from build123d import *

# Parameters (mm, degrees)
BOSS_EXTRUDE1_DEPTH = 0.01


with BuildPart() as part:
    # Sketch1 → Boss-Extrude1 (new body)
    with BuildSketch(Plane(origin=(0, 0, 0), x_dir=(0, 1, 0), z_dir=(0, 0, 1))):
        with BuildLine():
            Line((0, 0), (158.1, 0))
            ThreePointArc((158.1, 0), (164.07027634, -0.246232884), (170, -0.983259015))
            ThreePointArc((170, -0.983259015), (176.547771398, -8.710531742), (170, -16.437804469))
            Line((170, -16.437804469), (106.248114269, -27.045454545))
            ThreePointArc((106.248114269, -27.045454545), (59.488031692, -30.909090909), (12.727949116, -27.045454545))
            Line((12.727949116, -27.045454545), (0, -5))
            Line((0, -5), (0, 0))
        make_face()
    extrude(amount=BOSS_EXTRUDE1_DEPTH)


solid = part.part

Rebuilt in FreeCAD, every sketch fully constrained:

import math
import FreeCAD as App
import Part
import Sketcher
from FreeCAD import Vector
Q = App.Units.Quantity

doc = App.newDocument("Part")
body = doc.addObject("PartDesign::Body", "Body")

# Sketch on XY plane
sketch1 = body.newObject("Sketcher::SketchObject", "Sketch")
sketch1.AttachmentSupport = (doc.getObject("XY_Plane"), [""])
sketch1.MapMode = "FlatFace"
sketch1.addGeometry(Part.LineSegment(Vector(0, 158, 0), Vector(0, 0, 0)), False)
sketch1.addGeometry(Part.LineSegment(Vector(0, 0, 0), Vector(5, 0, 0)), False)
sketch1.addGeometry(Part.LineSegment(Vector(5, 0, 0), Vector(27, 13, 0)), False)
sketch1.addGeometry(Part.ArcOfCircle(Part.Circle(Vector(-254, 59, 0), Vector(0, 0, 1), 285), math.radians(-9.45), math.radians(9.45)), False)
sketch1.addGeometry(Part.LineSegment(Vector(27, 106, 0), Vector(16, 170, 0)), False)
sketch1.addGeometry(Part.ArcOfCircle(Part.Circle(Vector(9, 169, 0), Vector(0, 0, 1), 8), math.radians(9), math.radians(171)), False)
sketch1.addGeometry(Part.ArcOfCircle(Part.Circle(Vector(73, 158, 0), Vector(0, 0, 1), 73), math.radians(170.55), math.radians(180)), False)
sketch1.addConstraint(Sketcher.Constraint("Coincident", 0, 2, 1, 1))
sketch1.addConstraint(Sketcher.Constraint("Coincident", 1, 2, 2, 1))
sketch1.addConstraint(Sketcher.Constraint("Coincident", 2, 2, 3, 1))
sketch1.addConstraint(Sketcher.Constraint("Tangent", 3, 2, 4, 1))
sketch1.addConstraint(Sketcher.Constraint("Tangent", 4, 2, 5, 1))
sketch1.addConstraint(Sketcher.Constraint("Tangent", 5, 2, 6, 1))
sketch1.addConstraint(Sketcher.Constraint("Tangent", 6, 2, 0, 1))
sketch1.addConstraint(Sketcher.Constraint("Vertical", 0))
sketch1.addConstraint(Sketcher.Constraint("Horizontal", 1))
sketch1.addConstraint(Sketcher.Constraint("Coincident", 0, 2, -1, 1))
sketch1.addConstraint(Sketcher.Constraint("Horizontal", 4, 2, 5, 2))
sketch1.addConstraint(Sketcher.Constraint("Vertical", 2, 2, 3, 2))
sketch1.addConstraint(Sketcher.Constraint("DistanceX", 1, 1, 1, 2, 5.0))
sketch1.addConstraint(Sketcher.Constraint("Angle", 2, Q("30 deg")))
sketch1.addConstraint(Sketcher.Constraint("DistanceY", 0, 2, 0, 1, 158.1))
sketch1.addConstraint(Sketcher.Constraint("DistanceY", -1, 1, 4, 2, 170.0))
sketch1.addConstraint(Sketcher.Constraint("Radius", 3, 284.89133))
sketch1.addConstraint(Sketcher.Constraint("Radius", 5, 7.833509))
sketch1.addConstraint(Sketcher.Constraint("Radius", 6, 72.502157))
pad1 = body.newObject("PartDesign::Pad", "Pad")
pad1.Profile = sketch1
pad1.Length = 0.01

doc.recompute()
